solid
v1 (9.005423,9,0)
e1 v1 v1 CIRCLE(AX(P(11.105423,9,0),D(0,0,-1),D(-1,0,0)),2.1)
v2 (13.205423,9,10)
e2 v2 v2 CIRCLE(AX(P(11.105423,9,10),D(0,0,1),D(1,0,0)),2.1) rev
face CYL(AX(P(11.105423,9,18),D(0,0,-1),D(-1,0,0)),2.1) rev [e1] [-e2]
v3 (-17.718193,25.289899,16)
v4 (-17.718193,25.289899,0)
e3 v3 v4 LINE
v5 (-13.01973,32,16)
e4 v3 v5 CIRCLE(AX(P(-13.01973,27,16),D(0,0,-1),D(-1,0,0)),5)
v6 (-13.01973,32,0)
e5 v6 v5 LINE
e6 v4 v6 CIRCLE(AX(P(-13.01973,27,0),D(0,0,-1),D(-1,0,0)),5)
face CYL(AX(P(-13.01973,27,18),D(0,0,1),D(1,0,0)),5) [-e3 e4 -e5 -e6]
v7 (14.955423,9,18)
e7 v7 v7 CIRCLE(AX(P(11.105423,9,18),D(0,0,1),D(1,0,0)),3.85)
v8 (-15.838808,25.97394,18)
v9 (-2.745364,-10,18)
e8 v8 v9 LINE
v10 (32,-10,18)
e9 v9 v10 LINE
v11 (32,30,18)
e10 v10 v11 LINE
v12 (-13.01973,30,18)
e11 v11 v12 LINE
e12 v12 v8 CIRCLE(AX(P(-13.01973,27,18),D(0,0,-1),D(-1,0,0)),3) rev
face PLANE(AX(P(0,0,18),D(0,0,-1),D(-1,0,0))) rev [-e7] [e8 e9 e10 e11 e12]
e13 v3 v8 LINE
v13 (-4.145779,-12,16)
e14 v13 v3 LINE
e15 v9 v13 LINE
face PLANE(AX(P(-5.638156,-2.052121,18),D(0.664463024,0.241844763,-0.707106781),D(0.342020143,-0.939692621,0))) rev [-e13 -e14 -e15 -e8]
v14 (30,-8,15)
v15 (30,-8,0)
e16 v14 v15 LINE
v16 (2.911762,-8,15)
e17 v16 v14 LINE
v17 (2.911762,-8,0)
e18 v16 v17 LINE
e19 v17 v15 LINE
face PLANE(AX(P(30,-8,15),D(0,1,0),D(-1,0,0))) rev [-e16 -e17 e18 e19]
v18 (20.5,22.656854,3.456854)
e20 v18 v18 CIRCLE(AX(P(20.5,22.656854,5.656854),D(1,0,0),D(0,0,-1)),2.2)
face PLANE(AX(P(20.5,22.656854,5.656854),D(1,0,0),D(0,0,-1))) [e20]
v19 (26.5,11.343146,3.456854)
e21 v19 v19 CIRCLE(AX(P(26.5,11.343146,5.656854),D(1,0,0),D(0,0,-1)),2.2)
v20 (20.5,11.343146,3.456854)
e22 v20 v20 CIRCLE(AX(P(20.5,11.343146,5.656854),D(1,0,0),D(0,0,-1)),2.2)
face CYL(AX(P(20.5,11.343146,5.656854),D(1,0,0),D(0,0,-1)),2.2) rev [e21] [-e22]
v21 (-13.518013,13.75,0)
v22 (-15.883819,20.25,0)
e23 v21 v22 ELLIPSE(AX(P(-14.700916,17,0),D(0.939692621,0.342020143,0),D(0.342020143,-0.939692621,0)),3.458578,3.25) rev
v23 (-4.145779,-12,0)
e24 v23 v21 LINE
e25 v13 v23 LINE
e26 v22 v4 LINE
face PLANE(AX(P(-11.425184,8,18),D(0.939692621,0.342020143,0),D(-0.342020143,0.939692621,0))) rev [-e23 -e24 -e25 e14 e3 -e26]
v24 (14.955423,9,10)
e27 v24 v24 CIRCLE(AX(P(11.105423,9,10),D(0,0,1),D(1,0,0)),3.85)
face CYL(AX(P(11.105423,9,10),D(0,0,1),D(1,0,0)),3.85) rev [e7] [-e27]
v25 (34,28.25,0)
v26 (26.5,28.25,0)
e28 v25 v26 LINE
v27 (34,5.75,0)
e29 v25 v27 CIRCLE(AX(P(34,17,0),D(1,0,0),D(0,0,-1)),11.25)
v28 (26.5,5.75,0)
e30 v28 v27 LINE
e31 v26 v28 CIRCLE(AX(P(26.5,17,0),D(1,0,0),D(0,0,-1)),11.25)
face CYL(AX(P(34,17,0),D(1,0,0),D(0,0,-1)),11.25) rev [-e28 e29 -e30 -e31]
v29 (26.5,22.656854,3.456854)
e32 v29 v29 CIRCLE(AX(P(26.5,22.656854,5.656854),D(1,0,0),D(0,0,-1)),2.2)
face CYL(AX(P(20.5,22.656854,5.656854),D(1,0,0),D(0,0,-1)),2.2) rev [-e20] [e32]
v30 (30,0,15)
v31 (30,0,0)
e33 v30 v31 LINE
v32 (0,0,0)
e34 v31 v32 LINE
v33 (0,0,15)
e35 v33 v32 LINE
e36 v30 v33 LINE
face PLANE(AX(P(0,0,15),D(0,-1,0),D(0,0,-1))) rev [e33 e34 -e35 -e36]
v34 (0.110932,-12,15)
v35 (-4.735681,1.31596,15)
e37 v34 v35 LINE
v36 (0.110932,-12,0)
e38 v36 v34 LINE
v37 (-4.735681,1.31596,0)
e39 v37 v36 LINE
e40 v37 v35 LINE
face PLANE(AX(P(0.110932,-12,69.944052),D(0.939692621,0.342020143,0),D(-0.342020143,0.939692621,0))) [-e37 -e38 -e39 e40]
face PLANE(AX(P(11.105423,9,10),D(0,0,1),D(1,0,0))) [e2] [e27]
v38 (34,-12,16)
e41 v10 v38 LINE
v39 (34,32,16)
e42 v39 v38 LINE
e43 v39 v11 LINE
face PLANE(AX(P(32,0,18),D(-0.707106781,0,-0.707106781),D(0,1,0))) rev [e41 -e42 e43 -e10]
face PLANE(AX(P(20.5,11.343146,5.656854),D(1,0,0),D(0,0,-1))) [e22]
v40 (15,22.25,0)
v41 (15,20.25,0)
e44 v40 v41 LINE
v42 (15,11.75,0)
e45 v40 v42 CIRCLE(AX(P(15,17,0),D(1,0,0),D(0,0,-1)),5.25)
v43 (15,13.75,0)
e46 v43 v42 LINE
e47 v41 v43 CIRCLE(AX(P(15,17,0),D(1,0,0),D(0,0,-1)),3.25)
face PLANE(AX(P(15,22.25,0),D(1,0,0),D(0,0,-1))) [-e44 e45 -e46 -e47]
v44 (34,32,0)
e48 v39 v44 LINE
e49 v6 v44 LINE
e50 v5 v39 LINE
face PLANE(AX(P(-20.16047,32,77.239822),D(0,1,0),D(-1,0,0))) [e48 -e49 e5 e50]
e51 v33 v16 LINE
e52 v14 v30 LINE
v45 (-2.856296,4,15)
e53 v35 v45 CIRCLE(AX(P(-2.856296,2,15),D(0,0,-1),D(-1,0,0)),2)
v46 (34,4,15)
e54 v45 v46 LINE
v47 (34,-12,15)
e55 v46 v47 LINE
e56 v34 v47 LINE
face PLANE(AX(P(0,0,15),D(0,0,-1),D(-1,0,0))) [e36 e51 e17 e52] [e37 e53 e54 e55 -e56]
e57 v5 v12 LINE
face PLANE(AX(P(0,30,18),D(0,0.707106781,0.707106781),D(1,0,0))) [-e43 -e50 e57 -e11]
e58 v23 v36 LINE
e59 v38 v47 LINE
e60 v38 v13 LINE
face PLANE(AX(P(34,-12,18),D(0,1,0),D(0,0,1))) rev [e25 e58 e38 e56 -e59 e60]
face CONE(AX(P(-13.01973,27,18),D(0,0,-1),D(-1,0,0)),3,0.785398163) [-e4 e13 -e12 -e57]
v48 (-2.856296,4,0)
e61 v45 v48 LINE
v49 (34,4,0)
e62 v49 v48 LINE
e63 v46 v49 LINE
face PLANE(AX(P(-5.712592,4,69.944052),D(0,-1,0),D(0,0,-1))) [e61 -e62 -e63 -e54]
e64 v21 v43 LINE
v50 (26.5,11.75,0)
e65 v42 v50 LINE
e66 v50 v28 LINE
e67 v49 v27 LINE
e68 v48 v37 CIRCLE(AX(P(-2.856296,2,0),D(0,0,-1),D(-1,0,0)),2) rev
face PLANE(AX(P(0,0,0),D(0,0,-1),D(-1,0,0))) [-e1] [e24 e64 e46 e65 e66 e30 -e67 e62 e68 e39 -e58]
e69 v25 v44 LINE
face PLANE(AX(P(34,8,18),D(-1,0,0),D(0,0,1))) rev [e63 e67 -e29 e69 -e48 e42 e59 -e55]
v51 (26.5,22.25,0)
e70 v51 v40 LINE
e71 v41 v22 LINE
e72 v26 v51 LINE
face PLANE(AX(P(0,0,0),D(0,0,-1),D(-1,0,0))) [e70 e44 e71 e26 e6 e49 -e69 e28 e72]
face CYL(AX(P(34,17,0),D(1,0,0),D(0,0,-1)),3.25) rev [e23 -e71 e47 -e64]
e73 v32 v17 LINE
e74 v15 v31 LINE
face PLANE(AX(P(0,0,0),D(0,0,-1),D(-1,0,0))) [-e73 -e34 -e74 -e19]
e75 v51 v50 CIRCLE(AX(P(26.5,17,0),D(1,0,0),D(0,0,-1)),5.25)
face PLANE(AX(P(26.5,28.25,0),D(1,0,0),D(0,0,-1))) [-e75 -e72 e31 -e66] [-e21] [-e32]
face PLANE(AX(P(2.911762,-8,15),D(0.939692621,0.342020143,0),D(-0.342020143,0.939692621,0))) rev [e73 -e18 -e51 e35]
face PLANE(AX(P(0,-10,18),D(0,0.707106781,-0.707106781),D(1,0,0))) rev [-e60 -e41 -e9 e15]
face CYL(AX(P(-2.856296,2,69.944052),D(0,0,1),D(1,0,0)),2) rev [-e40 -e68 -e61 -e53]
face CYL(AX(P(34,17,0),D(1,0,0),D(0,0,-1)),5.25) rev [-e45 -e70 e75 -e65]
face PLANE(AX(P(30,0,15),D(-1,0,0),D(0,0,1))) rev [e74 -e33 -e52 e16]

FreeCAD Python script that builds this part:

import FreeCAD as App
import Part
import Sketcher
from FreeCAD import Vector
Q = App.Units.Quantity


def edges_at(feature, points):
    """Names of the edges that pass closest to the given points."""
    edges = feature.Shape.Edges
    near = lambda p: min(range(len(edges)), key=lambda i: edges[i].distToShape(Part.Vertex(*p))[0])
    return sorted({f"Edge{near(p) + 1}" for p in points})

doc = App.newDocument("Part")
body = doc.addObject("PartDesign::Body", "Body")

# Sketch on XY plane
sketch1 = body.newObject("Sketcher::SketchObject", "Sketch")
sketch1.AttachmentSupport = (doc.getObject("XY_Plane"), [""])
sketch1.MapMode = "FlatFace"
sketch1.addGeometry([
    Part.LineSegment(Vector(30, 0, 0), Vector(0, 0, 0)),
    Part.LineSegment(Vector(0, 0, 0), Vector(3, -8, 0)),
    Part.LineSegment(Vector(3, -8, 0), Vector(30, -8, 0)),
    Part.LineSegment(Vector(30, -8, 0), Vector(30, 0, 0)),
], False)
sketch1.addConstraint([
    Sketcher.Constraint("Coincident", 0, 2, 1, 1),
    Sketcher.Constraint("Coincident", 1, 2, 2, 1),
    Sketcher.Constraint("Coincident", 2, 2, 3, 1),
    Sketcher.Constraint("Coincident", 3, 2, 0, 1),
    Sketcher.Constraint("Horizontal", 0),
    Sketcher.Constraint("Horizontal", 2),
    Sketcher.Constraint("Vertical", 3),
    Sketcher.Constraint("Coincident", 0, 2, -1, 1),
    Sketcher.Constraint("DistanceX", 0, 2, 0, 1, 30.0),
    Sketcher.Constraint("DistanceY", 3, 1, 3, 2, 8.0),
    Sketcher.Constraint("Angle", 1, Q("-70 deg")),
])
pad1 = body.newObject("PartDesign::Pad", "Pad")
pad1.Profile = sketch1
pad1.Length = 15

# Sketch on XY plane
sketch2 = body.newObject("Sketcher::SketchObject", "Sketch001")
sketch2.AttachmentSupport = (doc.getObject("XY_Plane"), [""])
sketch2.MapMode = "FlatFace"
sketch2.AttachmentOffset = App.Placement(Vector(0, 0, 15), App.Rotation())
sketch2.addGeometry([
    Part.LineSegment(Vector(-11, 8, 0), Vector(-3, -16, 0)),
    Part.LineSegment(Vector(-3, -16, 0), Vector(38, -16, 0)),
    Part.LineSegment(Vector(38, -16, 0), Vector(38, 8, 0)),
    Part.LineSegment(Vector(38, 8, 0), Vector(-11, 8, 0)),
], False)
sketch2.addConstraint([
    Sketcher.Constraint("Coincident", 0, 2, 1, 1),
    Sketcher.Constraint("Coincident", 1, 2, 2, 1),
    Sketcher.Constraint("Coincident", 2, 2, 3, 1),
    Sketcher.Constraint("Coincident", 3, 2, 0, 1),
    Sketcher.Constraint("Horizontal", 1),
    Sketcher.Constraint("Vertical", 2),
    Sketcher.Constraint("Horizontal", 3),
    Sketcher.Constraint("DistanceY", 2, 1, 2, 2, 24.0),
    Sketcher.Constraint("Angle", 0, Q("-70 deg")),
    Sketcher.Constraint("DistanceY", 0, 2, -1, 1, 16.0),
    Sketcher.Constraint("DistanceX", -1, 1, 1, 2, 38.0),
    Sketcher.Constraint("DistanceX", 1, 1, 1, 2, 40.689898),
])
pad2 = body.newObject("PartDesign::Pad", "Pad001")
pad2.Profile = sketch2
pad2.Length = 3

# Sketch on XY plane
sketch3 = body.newObject("Sketcher::SketchObject", "Sketch002")
sketch3.AttachmentSupport = (doc.getObject("XY_Plane"), [""])
sketch3.MapMode = "FlatFace"
sketch3.addGeometry([
    Part.LineSegment(Vector(34, 4, 0), Vector(-5.7, 4, 0)),  # 0
    Part.LineSegment(Vector(-5.7, 4, 0), Vector(1.6, -16, 0)),  # 1
    Part.LineSegment(Vector(1.6, -16, 0), Vector(-2.7, -16, 0)),  # 2
    Part.LineSegment(Vector(-2.7, -16, 0), Vector(-11.4, 8, 0)),  # 3
    Part.LineSegment(Vector(-11.4, 8, 0), Vector(38, 8, 0)),  # 4
    Part.LineSegment(Vector(38, 8, 0), Vector(38, -16, 0)),  # 5
    Part.LineSegment(Vector(38, -16, 0), Vector(34, -16, 0)),  # 6
    Part.LineSegment(Vector(34, -16, 0), Vector(34, 4, 0)),  # 7
], False)
sketch3.addConstraint([
    Sketcher.Constraint("Coincident", 0, 2, 1, 1),
    Sketcher.Constraint("Coincident", 1, 2, 2, 1),
    Sketcher.Constraint("Coincident", 2, 2, 3, 1),
    Sketcher.Constraint("Coincident", 3, 2, 4, 1),
    Sketcher.Constraint("Coincident", 4, 2, 5, 1),
    Sketcher.Constraint("Coincident", 5, 2, 6, 1),
    Sketcher.Constraint("Coincident", 6, 2, 7, 1),
    Sketcher.Constraint("Coincident", 7, 2, 0, 1),
    Sketcher.Constraint("Horizontal", 0),
    Sketcher.Constraint("Horizontal", 2),
    Sketcher.Constraint("Horizontal", 4),
    Sketcher.Constraint("Vertical", 5),
    Sketcher.Constraint("Horizontal", 6),
    Sketcher.Constraint("Vertical", 7),
    Sketcher.Constraint("Parallel", 1, 3),
    Sketcher.Constraint("Horizontal", 2, 2, 5, 2),
    Sketcher.Constraint("DistanceX", 6, 2, 6, 1, 4.0),
    Sketcher.Constraint("DistanceY", 5, 2, 5, 1, 24.0),
    Sketcher.Constraint("DistanceY", 7, 1, 7, 2, 20.0),
    Sketcher.Constraint("Angle", 1, Q("-70 deg")),
    Sketcher.Constraint("DistanceY", -1, 1, 0, 2, 4.0),
    Sketcher.Constraint("DistanceX", -1, 1, 4, 2, 38.0),
    Sketcher.Constraint("DistanceX", 2, 2, 2, 1, 4.256711),
    Sketcher.Constraint("DistanceX", 2, 2, -1, 1, 2.689898),
])
pad3 = body.newObject("PartDesign::Pad", "Pad002")
pad3.Profile = sketch3
pad3.Length = 15

# Sketch on XY plane
sketch4 = body.newObject("Sketcher::SketchObject", "Sketch003")
sketch4.AttachmentSupport = (doc.getObject("XY_Plane"), [""])
sketch4.MapMode = "FlatFace"
sketch4.addGeometry([
    Part.LineSegment(Vector(34, 8, 0), Vector(38, 8, 0)),  # 0
    Part.LineSegment(Vector(38, 8, 0), Vector(38, -16, 0)),  # 1
    Part.LineSegment(Vector(38, -16, 0), Vector(-4.1, -16, 0)),  # 2
    Part.LineSegment(Vector(-4.1, -16, 0), Vector(-4.1, -12, 0)),  # 3
    Part.LineSegment(Vector(-4.1, -12, 0), Vector(34, -12, 0)),  # 4
    Part.LineSegment(Vector(34, -12, 0), Vector(34, 8, 0)),  # 5
], False)
sketch4.addConstraint([
    Sketcher.Constraint("Coincident", 0, 2, 1, 1),
    Sketcher.Constraint("Coincident", 1, 2, 2, 1),
    Sketcher.Constraint("Coincident", 2, 2, 3, 1),
    Sketcher.Constraint("Coincident", 3, 2, 4, 1),
    Sketcher.Constraint("Coincident", 4, 2, 5, 1),
    Sketcher.Constraint("Coincident", 5, 2, 0, 1),
    Sketcher.Constraint("Horizontal", 0),
    Sketcher.Constraint("Vertical", 1),
    Sketcher.Constraint("Horizontal", 2),
    Sketcher.Constraint("Vertical", 3),
    Sketcher.Constraint("Horizontal", 4),
    Sketcher.Constraint("Vertical", 5),
    Sketcher.Constraint("Equal", 0, 3),
    Sketcher.Constraint("DistanceX", 0, 1, 0, 2, 4.0),
    Sketcher.Constraint("DistanceY", 1, 2, 1, 1, 24.0),
    Sketcher.Constraint("DistanceX", -1, 1, 0, 2, 38.0),
    Sketcher.Constraint("DistanceY", -1, 1, 0, 2, 8.0),
    Sketcher.Constraint("DistanceX", 2, 2, 2, 1, 42.145779),
])
pocket1 = body.newObject("PartDesign::Pocket", "Pocket")
pocket1.Profile = sketch4
pocket1.Type = "ThroughAll"
pocket1.Reversed = True
doc.recompute()

fillet = body.newObject("PartDesign::Fillet", "Fillet")
fillet.Base = (pocket1, edges_at(pocket1, [(-5.713, 4, 7.5)]))
fillet.Radius = 2

# Sketch on XY plane
sketch5 = body.newObject("Sketcher::SketchObject", "Sketch004")
sketch5.AttachmentSupport = (doc.getObject("XY_Plane"), [""])
sketch5.MapMode = "FlatFace"
sketch5.addGeometry([
    Part.LineSegment(Vector(-11, 8, 0), Vector(-20, 32, 0)),
    Part.LineSegment(Vector(-20, 32, 0), Vector(34, 32, 0)),
    Part.LineSegment(Vector(34, 32, 0), Vector(34, 8, 0)),
    Part.LineSegment(Vector(34, 8, 0), Vector(-11, 8, 0)),
], False)
sketch5.addConstraint([
    Sketcher.Constraint("Coincident", 0, 2, 1, 1),
    Sketcher.Constraint("Coincident", 1, 2, 2, 1),
    Sketcher.Constraint("Coincident", 2, 2, 3, 1),
    Sketcher.Constraint("Coincident", 3, 2, 0, 1),
    Sketcher.Constraint("Horizontal", 1),
    Sketcher.Constraint("Vertical", 2),
    Sketcher.Constraint("Horizontal", 3),
    Sketcher.Constraint("DistanceY", 2, 2, 2, 1, 24.0),
    Sketcher.Constraint("Angle", 0, Q("110 deg")),
    Sketcher.Constraint("DistanceY", -1, 1, 0, 2, 32.0),
    Sketcher.Constraint("DistanceX", -1, 1, 1, 2, 34.0),
    Sketcher.Constraint("DistanceX", 1, 1, 1, 2, 54.16047),
])
pad4 = body.newObject("PartDesign::Pad", "Pad003")
pad4.Profile = sketch5
pad4.Length = 18

# Sketch on XY plane
sketch6 = body.newObject("Sketcher::SketchObject", "Sketch005")
sketch6.AttachmentSupport = (doc.getObject("XY_Plane"), [""])
sketch6.MapMode = "FlatFace"
sketch6.addGeometry([
    Part.LineSegment(Vector(34, 17, 0), Vector(-14.7, 17, 0)),  # 0
    Part.LineSegment(Vector(-14.7, 17, 0), Vector(-15.9, 20.2, 0)),  # 1
    Part.LineSegment(Vector(-15.9, 20.2, 0), Vector(15, 20.2, 0)),  # 2
    Part.LineSegment(Vector(15, 20.2, 0), Vector(15, 22.2, 0)),  # 3
    Part.LineSegment(Vector(15, 22.2, 0), Vector(26.5, 22.2, 0)),  # 4
    Part.LineSegment(Vector(26.5, 22.2, 0), Vector(26.5, 28.2, 0)),  # 5
    Part.LineSegment(Vector(26.5, 28.2, 0), Vector(34, 28.2, 0)),  # 6
    Part.LineSegment(Vector(34, 28.2, 0), Vector(34, 17, 0)),  # 7
], False)
sketch6.addGeometry(Part.LineSegment(Vector(34, 17, 0), Vector(-15.9, 17, 0)), True)  # axis
sketch6.addConstraint([
    Sketcher.Constraint("Coincident", 0, 2, 1, 1),
    Sketcher.Constraint("Coincident", 1, 2, 2, 1),
    Sketcher.Constraint("Coincident", 2, 2, 3, 1),
    Sketcher.Constraint("Coincident", 3, 2, 4, 1),
    Sketcher.Constraint("Coincident", 4, 2, 5, 1),
    Sketcher.Constraint("Coincident", 5, 2, 6, 1),
    Sketcher.Constraint("Coincident", 6, 2, 7, 1),
    Sketcher.Constraint("Coincident", 7, 2, 0, 1),
    Sketcher.Constraint("Horizontal", 0),
    Sketcher.Constraint("Horizontal", 2),
    Sketcher.Constraint("Vertical", 3),
    Sketcher.Constraint("Horizontal", 4),
    Sketcher.Constraint("Vertical", 5),
    Sketcher.Constraint("Horizontal", 6),
    Sketcher.Constraint("Vertical", 7),
    Sketcher.Constraint("Horizontal", 8),
    Sketcher.Constraint("Coincident", 8, 1, 7, 2),
    Sketcher.Constraint("Vertical", 1, 2, 8, 2),
    Sketcher.Constraint("DistanceY", 3, 1, 3, 2, 2.0),
    Sketcher.Constraint("DistanceY", 5, 1, 5, 2, 6.0),
    Sketcher.Constraint("Angle", 1, Q("110 deg")),
    Sketcher.Constraint("DistanceX", 4, 1, 4, 2, 11.5),
    Sketcher.Constraint("DistanceX", 6, 1, 6, 2, 7.5),
    Sketcher.Constraint("DistanceY", -1, 1, 0, 2, 17.0),
    Sketcher.Constraint("DistanceX", -1, 1, 2, 2, 15.0),
    Sketcher.Constraint("DistanceY", 7, 2, 7, 1, 11.25),
    Sketcher.Constraint("DistanceX", 2, 1, 2, 2, 30.883819),
])
groove = body.newObject("PartDesign::Groove", "Groove")
groove.Profile = sketch6
groove.ReferenceAxis = (sketch6, ["Axis0"])
groove.Angle = 360

# Sketch on YZ plane
sketch7 = body.newObject("Sketcher::SketchObject", "Sketch006")
sketch7.AttachmentSupport = (doc.getObject("YZ_Plane"), [""])
sketch7.MapMode = "FlatFace"
sketch7.AttachmentOffset = App.Placement(Vector(0, 0, 26.5), App.Rotation())
sketch7.addGeometry([
    Part.Circle(Vector(22.7, 5.7, 0), Vector(0, 0, 1), 2.2),
    Part.Circle(Vector(22.7, -5.7, 0), Vector(0, 0, 1), 2.2),
    Part.Circle(Vector(11.3, -5.7, 0), Vector(0, 0, 1), 2.2),
    Part.Circle(Vector(11.3, 5.7, 0), Vector(0, 0, 1), 2.2),
], False)
sketch7.addConstraint([
    Sketcher.Constraint("Equal", 0, 1),
    Sketcher.Constraint("Equal", 1, 2),
    Sketcher.Constraint("Equal", 2, 3),
    Sketcher.Constraint("Symmetric", 0, 3, 1, 3, -1),
    Sketcher.Constraint("Symmetric", 2, 3, 3, 3, -1),
    Sketcher.Constraint("Horizontal", 1, 3, 2, 3),
    Sketcher.Constraint("Diameter", 0, 4.4),
    Sketcher.Constraint("DistanceY", 1, 3, 0, 3, 11.313708),
    Sketcher.Constraint("DistanceX", 2, 3, 1, 3, 11.313708),
    Sketcher.Constraint("DistanceX", -1, 1, 0, 3, 22.656854),
])
pocket2 = body.newObject("PartDesign::Pocket", "Pocket001")
pocket2.Profile = sketch7
pocket2.Length = 6
doc.recompute()

fillet2 = body.newObject("PartDesign::Fillet", "Fillet001")
fillet2.Base = (pocket2, edges_at(pocket2, [(-20.16, 32, 9)]))
fillet2.Radius = 5
doc.recompute()

chamfer = body.newObject("PartDesign::Chamfer", "Chamfer")
chamfer.Base = (fillet2, edges_at(fillet2, [
    (10.49, 32, 18),
    (-10.932, 6.645, 18),
    (-17.115, 29.868, 18),
    (34, 10, 18),
    (14.927, -12, 18),
]))
chamfer.Size = 2

# Sketch on XY plane
sketch8 = body.newObject("Sketcher::SketchObject", "Sketch007")
sketch8.AttachmentSupport = (doc.getObject("XY_Plane"), [""])
sketch8.MapMode = "FlatFace"
sketch8.addGeometry(Part.Circle(Vector(11.1, 9, 0), Vector(0, 0, 1), 2.1), False)
sketch8.addConstraint([
    Sketcher.Constraint("Diameter", 0, 4.2),
    Sketcher.Constraint("DistanceY", -1, 1, 0, 3, 9.0),
    Sketcher.Constraint("DistanceX", -1, 1, 0, 3, 11.105423),
])
pocket3 = body.newObject("PartDesign::Pocket", "Pocket002")
pocket3.Profile = sketch8
pocket3.Type = "ThroughAll"
pocket3.Midplane = True

# Sketch on XY plane
sketch9 = body.newObject("Sketcher::SketchObject", "Sketch008")
sketch9.AttachmentSupport = (doc.getObject("XY_Plane"), [""])
sketch9.MapMode = "FlatFace"
sketch9.AttachmentOffset = App.Placement(Vector(0, 0, 18), App.Rotation())
sketch9.addGeometry(Part.Circle(Vector(11.1, 9, 0), Vector(0, 0, 1), 3.9), False)
sketch9.addConstraint([
    Sketcher.Constraint("Diameter", 0, 7.7),
    Sketcher.Constraint("DistanceY", -1, 1, 0, 3, 9.0),
    Sketcher.Constraint("DistanceX", -1, 1, 0, 3, 11.105423),
])
pocket4 = body.newObject("PartDesign::Pocket", "Pocket003")
pocket4.Profile = sketch9
pocket4.Length = 8

doc.recompute()
